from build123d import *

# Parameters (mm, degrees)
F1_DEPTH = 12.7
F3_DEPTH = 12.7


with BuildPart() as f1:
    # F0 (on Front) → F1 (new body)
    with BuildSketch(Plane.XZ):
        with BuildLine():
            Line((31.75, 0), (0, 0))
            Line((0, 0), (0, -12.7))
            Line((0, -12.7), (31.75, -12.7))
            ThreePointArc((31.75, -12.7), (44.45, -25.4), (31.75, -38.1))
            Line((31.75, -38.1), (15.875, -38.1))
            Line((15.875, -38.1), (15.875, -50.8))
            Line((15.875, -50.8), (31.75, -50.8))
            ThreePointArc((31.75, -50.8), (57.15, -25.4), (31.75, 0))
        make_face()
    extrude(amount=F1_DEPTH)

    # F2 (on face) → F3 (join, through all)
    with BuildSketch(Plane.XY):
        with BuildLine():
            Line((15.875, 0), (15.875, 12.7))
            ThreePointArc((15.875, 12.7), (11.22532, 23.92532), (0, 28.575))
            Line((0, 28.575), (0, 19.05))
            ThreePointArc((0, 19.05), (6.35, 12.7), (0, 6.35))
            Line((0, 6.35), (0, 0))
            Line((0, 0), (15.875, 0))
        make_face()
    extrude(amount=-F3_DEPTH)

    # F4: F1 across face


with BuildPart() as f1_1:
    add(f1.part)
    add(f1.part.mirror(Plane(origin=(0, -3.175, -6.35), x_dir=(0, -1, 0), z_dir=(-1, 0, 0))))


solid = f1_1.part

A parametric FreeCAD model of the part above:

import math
import FreeCAD as App
import Part
import Sketcher
from FreeCAD import Vector
Q = App.Units.Quantity

doc = App.newDocument("Part")
body = doc.addObject("PartDesign::Body", "Body")

sketch1 = body.newObject("Sketcher::SketchObject", "Sketch")
sketch1.AttachmentSupport = (doc.getObject("XZ_Plane"), [""])
sketch1.MapMode = "FlatFace"
sketch1.addGeometry(Part.LineSegment(Vector(32, 0, 0), Vector(0, 0, 0)), False)
sketch1.addGeometry(Part.LineSegment(Vector(0, 0, 0), Vector(0, -13, 0)), False)
sketch1.addGeometry(Part.LineSegment(Vector(0, -13, 0), Vector(32, -13, 0)), False)
sketch1.addGeometry(Part.ArcOfCircle(Part.Circle(Vector(32, -25, 0), Vector(0, 0, 1), 13), math.radians(-90), math.radians(90)), False)
sketch1.addGeometry(Part.LineSegment(Vector(32, -38, 0), Vector(16, -38, 0)), False)
sketch1.addGeometry(Part.LineSegment(Vector(16, -38, 0), Vector(16, -51, 0)), False)
sketch1.addGeometry(Part.LineSegment(Vector(16, -51, 0), Vector(32, -51, 0)), False)
sketch1.addGeometry(Part.ArcOfCircle(Part.Circle(Vector(32, -25, 0), Vector(0, 0, 1), 25), math.radians(-90), math.radians(90)), False)
sketch1.addConstraint(Sketcher.Constraint("Coincident", 0, 2, 1, 1))
sketch1.addConstraint(Sketcher.Constraint("Coincident", 1, 2, 2, 1))
sketch1.addConstraint(Sketcher.Constraint("Tangent", 2, 2, 3, 2))
sketch1.addConstraint(Sketcher.Constraint("Tangent", 3, 1, 4, 1))
sketch1.addConstraint(Sketcher.Constraint("Coincident", 4, 2, 5, 1))
sketch1.addConstraint(Sketcher.Constraint("Coincident", 5, 2, 6, 1))
sketch1.addConstraint(Sketcher.Constraint("Tangent", 6, 2, 7, 1))
sketch1.addConstraint(Sketcher.Constraint("Tangent", 7, 2, 0, 1))
sketch1.addConstraint(Sketcher.Constraint("Horizontal", 0))
sketch1.addConstraint(Sketcher.Constraint("Vertical", 1))
sketch1.addConstraint(Sketcher.Constraint("Horizontal", 2))
sketch1.addConstraint(Sketcher.Constraint("Horizontal", 4))
sketch1.addConstraint(Sketcher.Constraint("Vertical", 5))
sketch1.addConstraint(Sketcher.Constraint("Horizontal", 6))
sketch1.addConstraint(Sketcher.Constraint("Coincident", 0, 2, -1, 1))
sketch1.addConstraint(Sketcher.Constraint("Coincident", 7, 3, 3, 3))
sketch1.addConstraint(Sketcher.Constraint("Radius", 7, Q("1 in")))
sketch1.addConstraint(Sketcher.Constraint("Radius", 3, Q("0.5 in")))
sketch1.addConstraint(Sketcher.Constraint("DistanceX", 0, 2, 0, 1, Q("1.25 in")))
sketch1.addConstraint(Sketcher.Constraint("DistanceX", 4, 2, 4, 1, Q("0.625 in")))
pad1 = body.newObject("PartDesign::Pad", "Pad")
pad1.Profile = sketch1
pad1.Length = Q("0.5 in")

sketch2 = body.newObject("Sketcher::SketchObject", "Sketch001")
sketch2.AttachmentSupport = (doc.getObject("XY_Plane"), [""])
sketch2.MapMode = "FlatFace"
sketch2.addGeometry(Part.LineSegment(Vector(16, 0, 0), Vector(16, 13, 0)), False)
sketch2.addGeometry(Part.ArcOfCircle(Part.Circle(Vector(0, 13, 0), Vector(0, 0, 1), 16), math.radians(0), math.radians(90)), False)
sketch2.addGeometry(Part.LineSegment(Vector(0, 29, 0), Vector(0, 19, 0)), False)
sketch2.addGeometry(Part.ArcOfCircle(Part.Circle(Vector(0, 13, 0), Vector(0, 0, 1), 6), math.radians(-90), math.radians(90)), False)
sketch2.addGeometry(Part.LineSegment(Vector(0, 6, 0), Vector(0, 0, 0)), False)
sketch2.addGeometry(Part.LineSegment(Vector(0, 0, 0), Vector(16, 0, 0)), False)
sketch2.addConstraint(Sketcher.Constraint("Tangent", 0, 2, 1, 1))
sketch2.addConstraint(Sketcher.Constraint("Coincident", 1, 2, 2, 1))
sketch2.addConstraint(Sketcher.Constraint("Coincident", 2, 2, 3, 2))
sketch2.addConstraint(Sketcher.Constraint("Coincident", 3, 1, 4, 1))
sketch2.addConstraint(Sketcher.Constraint("Coincident", 4, 2, 5, 1))
sketch2.addConstraint(Sketcher.Constraint("Coincident", 5, 2, 0, 1))
sketch2.addConstraint(Sketcher.Constraint("Vertical", 0))
sketch2.addConstraint(Sketcher.Constraint("Vertical", 2))
sketch2.addConstraint(Sketcher.Constraint("Vertical", 4))
sketch2.addConstraint(Sketcher.Constraint("Horizontal", 5))
sketch2.addConstraint(Sketcher.Constraint("Coincident", 4, 2, -1, 1))
sketch2.addConstraint(Sketcher.Constraint("Coincident", 3, 3, 1, 3))
sketch2.addConstraint(Sketcher.Constraint("PointOnObject", 1, 3, -2))
sketch2.addConstraint(Sketcher.Constraint("PointOnObject", 1, 2, -2))
sketch2.addConstraint(Sketcher.Constraint("Radius", 3, Q("0.25 in")))
sketch2.addConstraint(Sketcher.Constraint("DistanceY", 0, 1, 0, 2, Q("0.5 in")))
sketch2.addConstraint(Sketcher.Constraint("Radius", 1, Q("0.625 in")))
pad2 = body.newObject("PartDesign::Pad", "Pad001")
pad2.Profile = sketch2
pad2.Length = Q("0.5 in")
pad2.Reversed = True
body2 = doc.addObject("PartDesign::Body", "Body001")
doc.recompute()

body2.BaseFeature = body
doc.recompute()

mirroring = doc.addObject("Part::Mirroring", "Mirroring")
mirroring.Source = body
mirroring.Base = Vector(0, -3.175, -6.35)
mirroring.Normal = Vector(-1, 0, 0)
body3 = doc.addObject("PartDesign::Body", "Body002")
body3.BaseFeature = mirroring
boolean = body2.newObject("PartDesign::Boolean", "Boolean")
boolean.Type = "Fuse"
boolean.addObjects([body3])
doc.recompute()
mirroring.Visibility = False

doc.recompute()
